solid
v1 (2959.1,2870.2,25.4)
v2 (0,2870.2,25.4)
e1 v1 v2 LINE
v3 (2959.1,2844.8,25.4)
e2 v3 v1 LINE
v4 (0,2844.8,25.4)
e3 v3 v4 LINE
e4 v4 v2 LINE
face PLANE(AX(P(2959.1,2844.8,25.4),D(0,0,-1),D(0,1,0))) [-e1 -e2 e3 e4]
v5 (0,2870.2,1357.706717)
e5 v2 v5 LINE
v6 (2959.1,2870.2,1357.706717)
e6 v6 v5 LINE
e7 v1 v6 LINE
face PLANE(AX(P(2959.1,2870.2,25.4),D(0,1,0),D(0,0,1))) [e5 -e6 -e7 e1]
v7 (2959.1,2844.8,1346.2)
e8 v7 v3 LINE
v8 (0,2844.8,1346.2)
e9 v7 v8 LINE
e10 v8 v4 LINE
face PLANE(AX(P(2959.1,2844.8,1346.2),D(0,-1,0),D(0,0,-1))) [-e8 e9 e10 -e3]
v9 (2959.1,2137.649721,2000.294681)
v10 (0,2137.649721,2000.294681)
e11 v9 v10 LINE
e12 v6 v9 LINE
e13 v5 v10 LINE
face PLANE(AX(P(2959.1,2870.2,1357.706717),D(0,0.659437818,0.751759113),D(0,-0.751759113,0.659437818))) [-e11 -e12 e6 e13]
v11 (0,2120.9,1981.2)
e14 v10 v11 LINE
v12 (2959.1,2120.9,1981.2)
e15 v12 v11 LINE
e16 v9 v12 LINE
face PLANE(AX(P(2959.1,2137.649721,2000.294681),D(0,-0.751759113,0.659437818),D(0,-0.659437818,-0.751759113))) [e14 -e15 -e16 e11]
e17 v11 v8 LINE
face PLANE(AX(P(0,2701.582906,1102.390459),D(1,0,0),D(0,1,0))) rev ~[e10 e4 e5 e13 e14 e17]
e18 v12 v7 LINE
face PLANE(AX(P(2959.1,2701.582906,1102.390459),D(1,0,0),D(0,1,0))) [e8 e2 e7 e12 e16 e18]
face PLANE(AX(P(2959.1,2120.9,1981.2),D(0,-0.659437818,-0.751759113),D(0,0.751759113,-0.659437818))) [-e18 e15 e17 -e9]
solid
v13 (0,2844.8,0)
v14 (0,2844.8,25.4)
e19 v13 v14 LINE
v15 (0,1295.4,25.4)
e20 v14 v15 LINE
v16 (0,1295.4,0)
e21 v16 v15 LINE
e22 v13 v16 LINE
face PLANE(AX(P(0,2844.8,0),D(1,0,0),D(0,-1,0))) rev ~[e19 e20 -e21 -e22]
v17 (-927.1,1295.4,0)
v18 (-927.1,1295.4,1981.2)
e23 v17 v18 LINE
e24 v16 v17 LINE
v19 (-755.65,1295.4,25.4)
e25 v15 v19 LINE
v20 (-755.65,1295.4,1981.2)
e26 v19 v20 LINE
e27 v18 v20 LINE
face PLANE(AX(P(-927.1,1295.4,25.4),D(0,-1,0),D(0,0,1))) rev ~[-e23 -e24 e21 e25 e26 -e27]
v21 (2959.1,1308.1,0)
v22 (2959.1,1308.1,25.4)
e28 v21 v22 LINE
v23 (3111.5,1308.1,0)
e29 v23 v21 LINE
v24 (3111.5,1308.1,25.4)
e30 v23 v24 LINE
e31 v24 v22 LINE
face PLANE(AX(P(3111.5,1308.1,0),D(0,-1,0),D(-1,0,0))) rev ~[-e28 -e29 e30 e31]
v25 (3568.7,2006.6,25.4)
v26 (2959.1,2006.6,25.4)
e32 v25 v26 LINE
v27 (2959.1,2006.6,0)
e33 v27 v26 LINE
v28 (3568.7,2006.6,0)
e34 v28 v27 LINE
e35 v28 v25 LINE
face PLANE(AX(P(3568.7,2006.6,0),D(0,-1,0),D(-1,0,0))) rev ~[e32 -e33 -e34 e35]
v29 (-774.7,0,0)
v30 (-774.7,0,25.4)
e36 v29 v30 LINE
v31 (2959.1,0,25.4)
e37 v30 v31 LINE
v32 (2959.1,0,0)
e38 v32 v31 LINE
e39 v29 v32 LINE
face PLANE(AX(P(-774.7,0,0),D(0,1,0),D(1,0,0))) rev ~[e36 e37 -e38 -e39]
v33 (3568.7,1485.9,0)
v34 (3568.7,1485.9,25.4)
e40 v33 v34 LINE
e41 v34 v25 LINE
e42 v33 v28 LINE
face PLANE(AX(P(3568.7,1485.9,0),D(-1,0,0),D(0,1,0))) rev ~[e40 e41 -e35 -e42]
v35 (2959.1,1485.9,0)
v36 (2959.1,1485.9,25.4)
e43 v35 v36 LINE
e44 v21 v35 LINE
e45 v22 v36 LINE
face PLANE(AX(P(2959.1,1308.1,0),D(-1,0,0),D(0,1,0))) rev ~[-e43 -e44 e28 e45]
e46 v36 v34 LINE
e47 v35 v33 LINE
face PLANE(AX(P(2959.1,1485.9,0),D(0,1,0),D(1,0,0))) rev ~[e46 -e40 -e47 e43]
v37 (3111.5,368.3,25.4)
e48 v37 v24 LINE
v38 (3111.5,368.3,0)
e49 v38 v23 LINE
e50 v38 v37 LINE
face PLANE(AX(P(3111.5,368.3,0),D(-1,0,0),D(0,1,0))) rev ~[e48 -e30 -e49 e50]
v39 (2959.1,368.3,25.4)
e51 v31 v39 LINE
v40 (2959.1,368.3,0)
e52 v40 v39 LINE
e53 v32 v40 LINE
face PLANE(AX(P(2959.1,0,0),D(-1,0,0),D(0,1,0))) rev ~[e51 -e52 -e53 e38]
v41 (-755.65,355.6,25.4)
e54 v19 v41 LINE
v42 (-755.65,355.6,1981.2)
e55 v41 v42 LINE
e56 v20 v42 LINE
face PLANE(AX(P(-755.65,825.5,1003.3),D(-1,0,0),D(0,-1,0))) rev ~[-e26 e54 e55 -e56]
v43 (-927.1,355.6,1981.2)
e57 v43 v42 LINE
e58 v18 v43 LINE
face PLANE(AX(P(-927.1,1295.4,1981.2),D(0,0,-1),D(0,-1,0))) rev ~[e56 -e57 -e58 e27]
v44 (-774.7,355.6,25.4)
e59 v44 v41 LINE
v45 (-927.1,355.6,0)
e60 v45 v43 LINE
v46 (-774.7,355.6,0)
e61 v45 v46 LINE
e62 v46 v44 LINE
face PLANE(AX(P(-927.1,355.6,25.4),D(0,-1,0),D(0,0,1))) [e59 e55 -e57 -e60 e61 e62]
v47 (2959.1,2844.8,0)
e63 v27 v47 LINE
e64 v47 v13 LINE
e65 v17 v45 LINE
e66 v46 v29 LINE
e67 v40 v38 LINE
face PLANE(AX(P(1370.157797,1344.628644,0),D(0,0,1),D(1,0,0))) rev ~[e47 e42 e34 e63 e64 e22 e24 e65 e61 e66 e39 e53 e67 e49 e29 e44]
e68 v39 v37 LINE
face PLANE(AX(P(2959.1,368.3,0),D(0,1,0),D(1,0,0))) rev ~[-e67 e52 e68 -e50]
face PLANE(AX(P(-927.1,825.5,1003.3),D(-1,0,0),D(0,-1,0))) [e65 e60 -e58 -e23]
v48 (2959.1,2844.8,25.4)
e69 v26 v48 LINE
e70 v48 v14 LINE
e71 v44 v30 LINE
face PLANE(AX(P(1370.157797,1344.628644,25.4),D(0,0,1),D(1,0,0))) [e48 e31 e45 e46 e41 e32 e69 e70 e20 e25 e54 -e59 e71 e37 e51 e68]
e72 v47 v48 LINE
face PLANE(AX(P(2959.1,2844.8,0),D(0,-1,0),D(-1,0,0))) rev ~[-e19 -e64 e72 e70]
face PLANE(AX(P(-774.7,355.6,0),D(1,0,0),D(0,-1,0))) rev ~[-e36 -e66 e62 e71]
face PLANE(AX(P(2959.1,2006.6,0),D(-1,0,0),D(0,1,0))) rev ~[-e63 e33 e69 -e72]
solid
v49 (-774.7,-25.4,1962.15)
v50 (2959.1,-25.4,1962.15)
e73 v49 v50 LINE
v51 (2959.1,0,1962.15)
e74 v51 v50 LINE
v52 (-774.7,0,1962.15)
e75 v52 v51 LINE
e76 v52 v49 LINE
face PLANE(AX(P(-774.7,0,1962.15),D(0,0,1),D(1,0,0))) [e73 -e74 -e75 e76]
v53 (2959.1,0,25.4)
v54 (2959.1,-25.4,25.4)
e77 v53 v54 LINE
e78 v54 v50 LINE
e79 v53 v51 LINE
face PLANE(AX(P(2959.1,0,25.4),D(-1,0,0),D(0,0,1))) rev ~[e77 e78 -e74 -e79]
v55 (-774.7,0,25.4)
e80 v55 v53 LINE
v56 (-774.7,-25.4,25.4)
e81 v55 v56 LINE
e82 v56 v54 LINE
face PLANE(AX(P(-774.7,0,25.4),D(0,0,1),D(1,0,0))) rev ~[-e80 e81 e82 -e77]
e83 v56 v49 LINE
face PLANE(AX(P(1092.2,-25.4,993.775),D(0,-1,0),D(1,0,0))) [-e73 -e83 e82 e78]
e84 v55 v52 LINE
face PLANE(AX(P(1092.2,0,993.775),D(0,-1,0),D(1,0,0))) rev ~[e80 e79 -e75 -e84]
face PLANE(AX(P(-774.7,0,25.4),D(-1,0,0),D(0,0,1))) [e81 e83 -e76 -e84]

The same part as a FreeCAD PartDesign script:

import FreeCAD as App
import Part
import Sketcher
from FreeCAD import Vector
Q = App.Units.Quantity


def add_polygon(sketch, points):
    """Adds a closed chain of lines whose ends are joined by coincident constraints."""
    first, n = sketch.GeometryCount, len(points)
    for a, b in zip(points, points[1:] + points[:1]):
        sketch.addGeometry(Part.LineSegment(App.Vector(*a, 0), App.Vector(*b, 0)), False)
    for i in range(n):
        sketch.addConstraint(Sketcher.Constraint("Coincident", first + i, 2, first + (i + 1) % n, 1))

doc = App.newDocument("Part")
body = doc.addObject("PartDesign::Body", "Body")

# Sketch on XY plane
sketch1 = body.newObject("Sketcher::SketchObject", "Sketch")
sketch1.AttachmentSupport = (doc.getObject("XY_Plane"), [""])
sketch1.MapMode = "FlatFace"
add_polygon(sketch1, [(2959, 2845), (0, 2845), (0, 1295), (-927, 1295), (-927, 356), (-775, 356), (-775, 0), (2959, 0), (2959, 368), (3112, 368), (3112, 1308), (2959, 1308), (2959, 1486), (3569, 1486), (3569, 2007), (2959, 2007)])  # lines 0-15
sketch1.addConstraint([
    Sketcher.Constraint("Horizontal", 0),
    Sketcher.Constraint("Vertical", 1),
    Sketcher.Constraint("Horizontal", 2),
    Sketcher.Constraint("Vertical", 3),
    Sketcher.Constraint("Horizontal", 4),
    Sketcher.Constraint("Vertical", 5),
    Sketcher.Constraint("Horizontal", 6),
    Sketcher.Constraint("Vertical", 7),
    Sketcher.Constraint("Horizontal", 8),
    Sketcher.Constraint("Vertical", 9),
    Sketcher.Constraint("Horizontal", 10),
    Sketcher.Constraint("Vertical", 11),
    Sketcher.Constraint("Horizontal", 12),
    Sketcher.Constraint("Vertical", 13),
    Sketcher.Constraint("Horizontal", 14),
    Sketcher.Constraint("Vertical", 15),
    Sketcher.Constraint("PointOnObject", 0, 2, -2),
    Sketcher.Constraint("PointOnObject", 5, 2, -1),
    Sketcher.Constraint("Vertical", 7, 2, 10, 2),
    Sketcher.Constraint("Vertical", 11, 2, 14, 2),
    Sketcher.Constraint("Equal", 4, 8),
    Sketcher.Constraint("Equal", 3, 9),
    Sketcher.Constraint("DistanceX", 4, 1, 4, 2, Q("6 in")),
    Sketcher.Constraint("DistanceX", 6, 1, 6, 2, Q("147 in")),
    Sketcher.Constraint("DistanceX", 12, 1, 12, 2, Q("24 in")),
    Sketcher.Constraint("DistanceY", 1, 2, 1, 1, Q("61 in")),
    Sketcher.Constraint("DistanceY", 3, 2, 3, 1, Q("37 in")),
    Sketcher.Constraint("DistanceY", 5, 2, 5, 1, Q("14 in")),
    Sketcher.Constraint("DistanceY", 11, 1, 11, 2, Q("7 in")),
    Sketcher.Constraint("DistanceY", 15, 1, 15, 2, Q("33 in")),
    Sketcher.Constraint("DistanceX", 0, 2, 0, 1, Q("116.5 in")),
    Sketcher.Constraint("DistanceY", 7, 1, 7, 2, Q("14.5 in")),
])
pad1 = body.newObject("PartDesign::Pad", "Pad")
pad1.Profile = sketch1
pad1.Length = Q("1 in")

# Sketch on YZ plane
sketch2 = body.newObject("Sketcher::SketchObject", "Sketch001")
sketch2.AttachmentSupport = (doc.getObject("YZ_Plane"), [""])
sketch2.MapMode = "FlatFace"
sketch2.AttachmentOffset = App.Placement(Vector(0, 0, -36.5 * 25.4), App.Rotation())
add_polygon(sketch2, [(1295, 1981), (1295, 25), (356, 25), (356, 1981)])  # lines 0-3
sketch2.addConstraint([
    Sketcher.Constraint("Vertical", 0),
    Sketcher.Constraint("Horizontal", 1),
    Sketcher.Constraint("Vertical", 2),
    Sketcher.Constraint("Horizontal", 3),
    Sketcher.Constraint("DistanceX", 1, 2, 1, 1, Q("37 in")),
    Sketcher.Constraint("DistanceY", 0, 2, 0, 1, Q("77 in")),
    Sketcher.Constraint("DistanceX", -1, 1, 0, 2, Q("51 in")),
    Sketcher.Constraint("DistanceY", -1, 1, 0, 2, Q("1 in")),
])
pad2 = body.newObject("PartDesign::Pad", "Pad001")
pad2.Profile = sketch2
pad2.Length = Q("6.75 in")
body2 = doc.addObject("PartDesign::Body", "Body001")

# Sketch on XZ plane
sketch3 = body2.newObject("Sketcher::SketchObject", "Sketch002")
sketch3.AttachmentSupport = (doc.getObject("XZ_Plane001"), [""])
sketch3.MapMode = "FlatFace"
add_polygon(sketch3, [(-775, 1962), (-775, 25), (2959, 25), (2959, 1962)])  # lines 0-3
sketch3.addConstraint([
    Sketcher.Constraint("Vertical", 0),
    Sketcher.Constraint("Horizontal", 1),
    Sketcher.Constraint("Vertical", 2),
    Sketcher.Constraint("Horizontal", 3),
    Sketcher.Constraint("DistanceX", 1, 1, 1, 2, Q("147 in")),
    Sketcher.Constraint("DistanceY", -1, 1, 0, 2, Q("1 in")),
    Sketcher.Constraint("DistanceY", 0, 2, 0, 1, Q("76.25 in")),
    Sketcher.Constraint("DistanceX", 0, 2, -1, 1, Q("30.5 in")),
])
pad3 = body2.newObject("PartDesign::Pad", "Pad002")
pad3.Profile = sketch3
pad3.Length = Q("1 in")
body3 = doc.addObject("PartDesign::Body", "Body002")

# Sketch on YZ plane
sketch4 = body3.newObject("Sketcher::SketchObject", "Sketch003")
sketch4.AttachmentSupport = (doc.getObject("YZ_Plane002"), [""])
sketch4.MapMode = "FlatFace"
sketch4.AttachmentOffset = App.Placement(Vector(0, 0, 116.5 * 25.4), App.Rotation())
add_polygon(sketch4, [(2845, 1346), (2845, 25), (2870, 25), (2870, 1358), (2138, 2000), (2121, 1981)])  # lines 0-5
sketch4.addConstraint([
    Sketcher.Constraint("Vertical", 0),
    Sketcher.Constraint("Horizontal", 1),
    Sketcher.Constraint("Vertical", 2),
    Sketcher.Constraint("Perpendicular", 3, 4),
    Sketcher.Constraint("Perpendicular", 4, 5),
    Sketcher.Constraint("DistanceX", 1, 1, 1, 2, Q("1 in")),
    Sketcher.Constraint("DistanceY", 0, 2, 0, 1, Q("52 in")),
    Sketcher.Constraint("Distance", 4, Q("1 in")),
    Sketcher.Constraint("DistanceX", -1, 1, 0, 2, Q("112 in")),
    Sketcher.Constraint("DistanceY", -1, 1, 0, 2, Q("1 in")),
    Sketcher.Constraint("DistanceY", -1, 1, 4, 2, Q("78 in")),
    Sketcher.Constraint("DistanceX", -1, 1, 4, 2, Q("83.5 in")),
])
pad4 = body3.newObject("PartDesign::Pad", "Pad003")
pad4.Profile = sketch4
pad4.Length = Q("116.5 in")
pad4.Reversed = True

doc.recompute()
